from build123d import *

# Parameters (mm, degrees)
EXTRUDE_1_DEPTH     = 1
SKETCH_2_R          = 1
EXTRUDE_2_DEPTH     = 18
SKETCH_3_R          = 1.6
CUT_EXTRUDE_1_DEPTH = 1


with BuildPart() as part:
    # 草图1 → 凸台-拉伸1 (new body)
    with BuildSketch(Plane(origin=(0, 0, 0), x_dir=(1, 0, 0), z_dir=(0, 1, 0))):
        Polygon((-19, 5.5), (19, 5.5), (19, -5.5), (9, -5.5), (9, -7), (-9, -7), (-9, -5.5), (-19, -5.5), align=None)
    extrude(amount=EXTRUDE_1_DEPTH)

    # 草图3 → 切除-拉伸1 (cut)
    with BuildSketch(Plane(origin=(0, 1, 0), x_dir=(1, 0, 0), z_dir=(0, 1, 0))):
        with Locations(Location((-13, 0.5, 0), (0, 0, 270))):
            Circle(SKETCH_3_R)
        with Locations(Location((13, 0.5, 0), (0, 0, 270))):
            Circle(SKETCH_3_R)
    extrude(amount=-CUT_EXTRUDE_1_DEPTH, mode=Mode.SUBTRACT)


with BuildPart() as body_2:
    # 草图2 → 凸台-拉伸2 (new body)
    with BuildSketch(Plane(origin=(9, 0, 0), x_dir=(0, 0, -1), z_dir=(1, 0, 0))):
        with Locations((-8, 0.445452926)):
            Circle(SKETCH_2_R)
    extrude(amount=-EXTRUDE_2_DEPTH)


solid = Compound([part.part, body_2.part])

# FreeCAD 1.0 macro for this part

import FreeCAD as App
import Part
import Sketcher

V = App.Vector


def add_polygon(sketch, points):
    """Adds a closed chain of lines whose ends are joined by coincident constraints."""
    first, n = sketch.GeometryCount, len(points)
    for a, b in zip(points, points[1:] + points[:1]):
        sketch.addGeometry(Part.LineSegment(App.Vector(*a, 0), App.Vector(*b, 0)), False)
    for i in range(n):
        sketch.addConstraint(Sketcher.Constraint("Coincident", first + i, 2, first + (i + 1) % n, 1))

doc = App.newDocument("Part")
body = doc.addObject("PartDesign::Body", "Body")

# Sketch on XZ plane
sketch1 = doc.addObject("Sketcher::SketchObject", "Sketch")
body.addObject(sketch1)
sketch1.AttachmentSupport = (doc.XZ_Plane, [""])
sketch1.MapMode = "FlatFace"
add_polygon(sketch1, [(19, -5.5), (-19, -5.5), (-19, 5.5), (-9, 5.5), (-9, 7), (9, 7), (9, 5.5), (19, 5.5)])  # lines 0-7
sketch1.addConstraint([
    Sketcher.Constraint("Horizontal", 0),
    Sketcher.Constraint("Vertical", 1),
    Sketcher.Constraint("Horizontal", 2),
    Sketcher.Constraint("Vertical", 3),
    Sketcher.Constraint("Horizontal", 4),
    Sketcher.Constraint("Vertical", 5),
    Sketcher.Constraint("Horizontal", 6),
    Sketcher.Constraint("Vertical", 7),
    Sketcher.Constraint("Symmetric", 0, 2, 6, 2, -1, 1),
    Sketcher.Constraint("Symmetric", 2, 2, 5, 2, -2),
    Sketcher.Constraint("DistanceX", 0, 2, 0, 1, 38.0),
    Sketcher.Constraint("DistanceX", 2, 1, 2, 2, 10.0),
    Sketcher.Constraint("DistanceY", 1, 1, 1, 2, 11.0),
    Sketcher.Constraint("DistanceY", 3, 1, 3, 2, 1.5),
])
pad1 = doc.addObject("PartDesign::Pad", "Pad")
body.addObject(pad1)
pad1.Profile = sketch1
pad1.Length = 1
pad1.Reversed = True

# Sketch on XZ plane
sketch2 = doc.addObject("Sketcher::SketchObject", "Sketch001")
body.addObject(sketch2)
sketch2.AttachmentSupport = (doc.XZ_Plane, [""])
sketch2.MapMode = "FlatFace"
sketch2.AttachmentOffset = App.Placement(V(0, 0, -1), App.Rotation())
sketch2.addGeometry([
    Part.Circle(V(-13, -0.5, 0), V(0, 0, 1), 1.6),
    Part.Circle(V(13, -0.5, 0), V(0, 0, 1), 1.6),
], False)
sketch2.addConstraint([
    Sketcher.Constraint("Equal", 0, 1),
    Sketcher.Constraint("Symmetric", 0, 3, 1, 3, -2),
    Sketcher.Constraint("Diameter", 0, 3.2),
    Sketcher.Constraint("DistanceX", 0, 3, -1, 1, 13.0),
    Sketcher.Constraint("DistanceY", 0, 3, -1, 1, 0.5),
])
pocket1 = doc.addObject("PartDesign::Pocket", "Pocket")
body.addObject(pocket1)
pocket1.Profile = sketch2
pocket1.Length = 1
pocket1.Reversed = True
body2 = doc.addObject("PartDesign::Body", "Body001")

# Sketch on YZ plane
sketch3 = doc.addObject("Sketcher::SketchObject", "Sketch002")
body2.addObject(sketch3)
sketch3.AttachmentSupport = (doc.getObject("YZ_Plane001"), [""])
sketch3.MapMode = "FlatFace"
sketch3.AttachmentOffset = App.Placement(V(0, 0, 9), App.Rotation())
sketch3.addGeometry(Part.Circle(V(0.4, 8, 0), V(0, 0, 1), 1), False)
sketch3.addConstraint([
    Sketcher.Constraint("Diameter", 0, 2.0),
    Sketcher.Constraint("DistanceY", -1, 1, 0, 3, 8.0),
    Sketcher.Constraint("DistanceX", -1, 1, 0, 3, 0.445453),
])
pad2 = doc.addObject("PartDesign::Pad", "Pad001")
body2.addObject(pad2)
pad2.Profile = sketch3
pad2.Length = 18
pad2.Reversed = True

doc.recompute()
